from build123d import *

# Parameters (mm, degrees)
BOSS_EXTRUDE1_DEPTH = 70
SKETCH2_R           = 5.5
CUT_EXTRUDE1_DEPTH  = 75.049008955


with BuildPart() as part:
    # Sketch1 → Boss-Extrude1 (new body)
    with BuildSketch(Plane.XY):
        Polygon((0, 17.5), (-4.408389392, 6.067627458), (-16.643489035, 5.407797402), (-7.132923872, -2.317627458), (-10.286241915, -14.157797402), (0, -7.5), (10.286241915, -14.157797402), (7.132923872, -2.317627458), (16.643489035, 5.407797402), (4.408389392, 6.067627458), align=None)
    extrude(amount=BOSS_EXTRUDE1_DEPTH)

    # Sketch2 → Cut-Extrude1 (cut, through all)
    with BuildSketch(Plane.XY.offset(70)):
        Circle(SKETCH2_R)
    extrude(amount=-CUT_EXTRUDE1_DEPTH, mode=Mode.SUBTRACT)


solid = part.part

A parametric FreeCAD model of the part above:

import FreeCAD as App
import Part
import Sketcher

V = App.Vector

doc = App.newDocument("Part")
body = doc.addObject("PartDesign::Body", "Body")

# Sketch on XY plane
sketch1 = body.newObject("Sketcher::SketchObject", "Sketch")
sketch1.AttachmentSupport = (doc.getObject("XY_Plane"), [""])
sketch1.MapMode = "FlatFace"
sketch1.addGeometry([
    Part.LineSegment(V(0, 18, 0), V(-4, 6, 0)),  # 0
    Part.LineSegment(V(-4, 6, 0), V(-17, 5, 0)),  # 1
    Part.LineSegment(V(-17, 5, 0), V(-7, -2, 0)),  # 2
    Part.LineSegment(V(-7, -2, 0), V(-10, -14, 0)),  # 3
    Part.LineSegment(V(-10, -14, 0), V(0, -8, 0)),  # 4
    Part.LineSegment(V(0, -8, 0), V(10, -14, 0)),  # 5
    Part.LineSegment(V(10, -14, 0), V(7, -2, 0)),  # 6
    Part.LineSegment(V(7, -2, 0), V(17, 5, 0)),  # 7
    Part.LineSegment(V(17, 5, 0), V(4, 6, 0)),  # 8
    Part.LineSegment(V(4, 6, 0), V(0, 18, 0)),  # 9
], False)
sketch1.addConstraint([
    Sketcher.Constraint("Coincident", 0, 2, 1, 1),
    Sketcher.Constraint("Coincident", 1, 2, 2, 1),
    Sketcher.Constraint("Coincident", 2, 2, 3, 1),
    Sketcher.Constraint("Coincident", 3, 2, 4, 1),
    Sketcher.Constraint("Coincident", 4, 2, 5, 1),
    Sketcher.Constraint("Coincident", 5, 2, 6, 1),
    Sketcher.Constraint("Coincident", 6, 2, 7, 1),
    Sketcher.Constraint("Coincident", 7, 2, 8, 1),
    Sketcher.Constraint("Coincident", 8, 2, 9, 1),
    Sketcher.Constraint("Coincident", 9, 2, 0, 1),
    Sketcher.Constraint("Symmetric", 3, 2, 5, 2, -2),
    Sketcher.Constraint("Symmetric", 2, 2, 6, 2, -2),
    Sketcher.Constraint("Symmetric", 1, 2, 7, 2, -2),
    Sketcher.Constraint("Symmetric", 0, 2, 8, 2, -2),
    Sketcher.Constraint("PointOnObject", 4, 2, -2),
    Sketcher.Constraint("PointOnObject", 9, 2, -2),
    Sketcher.Constraint("Equal", 0, 1),
    Sketcher.Constraint("Equal", 1, 2),
    Sketcher.Constraint("Equal", 2, 3),
    Sketcher.Constraint("Equal", 3, 4),
    Sketcher.Constraint("DistanceY", 4, 2, -1, 1, 7.5),
    Sketcher.Constraint("DistanceY", -1, 1, 9, 2, 17.5),
    Sketcher.Constraint("DistanceX", 1, 2, 0, 2, 12.2351),
    Sketcher.Constraint("Distance", 0, 12.252879),
    Sketcher.Constraint("DistanceX", 0, 2, -1, 1, 4.408389),
    Sketcher.Constraint("DistanceX", 3, 2, -1, 1, 10.286242),
])
pad1 = body.newObject("PartDesign::Pad", "Pad")
pad1.Profile = sketch1
pad1.Length = 70

# Sketch on XY plane
sketch2 = body.newObject("Sketcher::SketchObject", "Sketch001")
sketch2.AttachmentSupport = (doc.getObject("XY_Plane"), [""])
sketch2.MapMode = "FlatFace"
sketch2.AttachmentOffset = App.Placement(V(0, 0, 70), App.Rotation())
sketch2.addGeometry(Part.Circle(V(0, 0, 0), V(0, 0, 1), 6), False)
sketch2.addConstraint([
    Sketcher.Constraint("Coincident", 0, 3, -1, 1),
    Sketcher.Constraint("Diameter", 0, 11.0),
])
pocket1 = body.newObject("PartDesign::Pocket", "Pocket")
pocket1.Profile = sketch2
pocket1.Type = "ThroughAll"

doc.recompute()
